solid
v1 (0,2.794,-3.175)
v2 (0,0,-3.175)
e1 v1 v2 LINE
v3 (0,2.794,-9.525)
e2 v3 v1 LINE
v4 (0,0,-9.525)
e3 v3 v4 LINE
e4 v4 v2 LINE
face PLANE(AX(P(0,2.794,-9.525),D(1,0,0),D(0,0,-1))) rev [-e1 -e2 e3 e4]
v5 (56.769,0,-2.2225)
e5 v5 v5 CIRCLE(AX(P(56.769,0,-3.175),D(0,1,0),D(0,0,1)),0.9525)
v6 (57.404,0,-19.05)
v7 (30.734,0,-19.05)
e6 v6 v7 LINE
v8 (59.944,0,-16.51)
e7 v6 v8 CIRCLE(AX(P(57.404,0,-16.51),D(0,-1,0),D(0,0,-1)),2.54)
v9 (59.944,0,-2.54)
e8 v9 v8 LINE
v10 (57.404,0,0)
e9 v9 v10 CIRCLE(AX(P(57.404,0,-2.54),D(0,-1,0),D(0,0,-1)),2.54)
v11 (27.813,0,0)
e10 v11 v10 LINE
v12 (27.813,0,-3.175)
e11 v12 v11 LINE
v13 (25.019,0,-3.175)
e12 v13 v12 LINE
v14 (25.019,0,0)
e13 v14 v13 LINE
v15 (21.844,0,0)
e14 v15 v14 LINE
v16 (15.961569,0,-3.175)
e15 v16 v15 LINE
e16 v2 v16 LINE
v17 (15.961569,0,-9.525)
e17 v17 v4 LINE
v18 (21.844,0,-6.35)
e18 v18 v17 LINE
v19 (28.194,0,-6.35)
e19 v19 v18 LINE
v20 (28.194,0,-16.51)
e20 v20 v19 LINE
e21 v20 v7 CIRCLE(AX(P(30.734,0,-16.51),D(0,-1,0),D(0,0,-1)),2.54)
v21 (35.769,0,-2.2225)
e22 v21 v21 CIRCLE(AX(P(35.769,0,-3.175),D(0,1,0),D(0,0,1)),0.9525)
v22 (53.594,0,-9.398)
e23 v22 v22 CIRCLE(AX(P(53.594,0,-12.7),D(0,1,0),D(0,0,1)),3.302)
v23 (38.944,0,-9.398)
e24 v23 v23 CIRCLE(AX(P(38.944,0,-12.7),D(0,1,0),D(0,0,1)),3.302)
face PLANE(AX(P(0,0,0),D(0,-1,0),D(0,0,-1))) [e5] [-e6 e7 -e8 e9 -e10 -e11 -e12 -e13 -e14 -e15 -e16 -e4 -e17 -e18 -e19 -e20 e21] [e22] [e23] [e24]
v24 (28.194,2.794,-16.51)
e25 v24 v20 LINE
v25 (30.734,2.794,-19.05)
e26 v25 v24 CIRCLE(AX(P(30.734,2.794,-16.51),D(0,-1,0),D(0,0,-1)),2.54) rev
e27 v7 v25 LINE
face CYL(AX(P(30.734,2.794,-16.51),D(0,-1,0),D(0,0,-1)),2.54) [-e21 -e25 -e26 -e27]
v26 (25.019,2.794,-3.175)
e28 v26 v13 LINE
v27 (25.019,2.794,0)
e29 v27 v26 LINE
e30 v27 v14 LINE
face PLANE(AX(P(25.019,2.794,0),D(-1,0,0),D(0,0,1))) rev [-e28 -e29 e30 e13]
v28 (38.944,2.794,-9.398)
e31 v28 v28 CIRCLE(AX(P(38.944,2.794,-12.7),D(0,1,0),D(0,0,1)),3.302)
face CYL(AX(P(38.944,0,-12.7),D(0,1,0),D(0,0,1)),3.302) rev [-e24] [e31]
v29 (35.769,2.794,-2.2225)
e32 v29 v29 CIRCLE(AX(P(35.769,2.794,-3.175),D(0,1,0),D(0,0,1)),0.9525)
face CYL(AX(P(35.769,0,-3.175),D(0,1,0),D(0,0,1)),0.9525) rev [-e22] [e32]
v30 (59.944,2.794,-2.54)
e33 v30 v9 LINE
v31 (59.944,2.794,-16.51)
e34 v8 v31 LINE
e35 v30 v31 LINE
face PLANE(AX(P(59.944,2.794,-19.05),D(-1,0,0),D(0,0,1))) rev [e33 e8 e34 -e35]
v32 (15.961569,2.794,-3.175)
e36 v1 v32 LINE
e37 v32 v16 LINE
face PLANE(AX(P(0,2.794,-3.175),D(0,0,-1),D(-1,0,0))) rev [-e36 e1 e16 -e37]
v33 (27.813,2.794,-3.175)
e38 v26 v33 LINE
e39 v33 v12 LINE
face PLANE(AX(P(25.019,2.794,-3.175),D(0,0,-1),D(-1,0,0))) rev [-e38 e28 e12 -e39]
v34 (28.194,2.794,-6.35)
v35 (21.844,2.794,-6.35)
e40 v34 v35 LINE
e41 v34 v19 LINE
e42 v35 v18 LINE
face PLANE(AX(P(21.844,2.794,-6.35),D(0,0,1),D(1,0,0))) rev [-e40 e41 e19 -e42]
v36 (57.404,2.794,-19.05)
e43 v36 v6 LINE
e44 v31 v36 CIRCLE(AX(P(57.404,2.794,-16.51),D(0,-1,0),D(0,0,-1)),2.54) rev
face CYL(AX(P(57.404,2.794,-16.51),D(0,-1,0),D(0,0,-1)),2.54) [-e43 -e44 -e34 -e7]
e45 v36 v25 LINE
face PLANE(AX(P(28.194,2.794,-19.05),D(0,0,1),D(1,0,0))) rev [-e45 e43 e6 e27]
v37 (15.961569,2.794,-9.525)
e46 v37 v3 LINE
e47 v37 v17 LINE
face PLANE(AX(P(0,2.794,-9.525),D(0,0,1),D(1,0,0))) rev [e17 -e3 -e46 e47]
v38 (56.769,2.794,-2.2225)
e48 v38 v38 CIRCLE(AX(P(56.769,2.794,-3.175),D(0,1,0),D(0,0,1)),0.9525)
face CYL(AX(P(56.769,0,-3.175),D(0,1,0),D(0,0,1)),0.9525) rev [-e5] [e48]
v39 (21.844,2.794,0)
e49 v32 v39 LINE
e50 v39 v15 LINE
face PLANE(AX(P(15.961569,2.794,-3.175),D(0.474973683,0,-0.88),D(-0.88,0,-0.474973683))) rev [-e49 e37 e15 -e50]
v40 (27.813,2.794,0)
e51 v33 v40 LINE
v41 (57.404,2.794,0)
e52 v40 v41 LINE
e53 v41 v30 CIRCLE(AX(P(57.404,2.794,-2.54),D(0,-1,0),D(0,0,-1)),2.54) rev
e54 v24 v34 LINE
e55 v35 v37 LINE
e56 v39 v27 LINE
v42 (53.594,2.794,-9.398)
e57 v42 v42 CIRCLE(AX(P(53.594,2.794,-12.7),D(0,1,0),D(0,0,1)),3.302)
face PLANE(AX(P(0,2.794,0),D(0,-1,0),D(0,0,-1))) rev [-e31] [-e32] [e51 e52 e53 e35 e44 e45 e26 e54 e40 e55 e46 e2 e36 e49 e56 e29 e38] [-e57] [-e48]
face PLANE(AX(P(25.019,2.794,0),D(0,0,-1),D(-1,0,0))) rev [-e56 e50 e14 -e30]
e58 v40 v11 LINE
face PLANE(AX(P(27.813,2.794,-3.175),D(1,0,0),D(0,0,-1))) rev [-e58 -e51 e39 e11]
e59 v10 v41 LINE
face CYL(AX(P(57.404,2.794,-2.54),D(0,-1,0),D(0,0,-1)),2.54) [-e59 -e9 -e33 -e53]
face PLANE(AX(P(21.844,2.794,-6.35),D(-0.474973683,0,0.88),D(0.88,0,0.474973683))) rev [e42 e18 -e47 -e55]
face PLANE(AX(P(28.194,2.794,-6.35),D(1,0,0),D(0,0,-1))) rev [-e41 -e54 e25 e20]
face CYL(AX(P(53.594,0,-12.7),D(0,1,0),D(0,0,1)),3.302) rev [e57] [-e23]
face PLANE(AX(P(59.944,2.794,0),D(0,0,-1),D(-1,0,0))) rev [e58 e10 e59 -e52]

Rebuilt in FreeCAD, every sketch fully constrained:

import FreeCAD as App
import Part
import Sketcher
from FreeCAD import Vector
Q = App.Units.Quantity


def edges_at(feature, points):
    """Names of the edges that pass closest to the given points."""
    edges = feature.Shape.Edges
    near = lambda p: min(range(len(edges)), key=lambda i: edges[i].distToShape(Part.Vertex(*p))[0])
    return sorted({f"Edge{near(p) + 1}" for p in points})


def add_polygon(sketch, points):
    """Adds a closed chain of lines whose ends are joined by coincident constraints."""
    first, n = sketch.GeometryCount, len(points)
    for a, b in zip(points, points[1:] + points[:1]):
        sketch.addGeometry(Part.LineSegment(App.Vector(*a, 0), App.Vector(*b, 0)), False)
    for i in range(n):
        sketch.addConstraint(Sketcher.Constraint("Coincident", first + i, 2, first + (i + 1) % n, 1))

doc = App.newDocument("Part")
body = doc.addObject("PartDesign::Body", "Body")

sketch1 = body.newObject("Sketcher::SketchObject", "Sketch")
sketch1.AttachmentSupport = (doc.getObject("XZ_Plane"), [""])
sketch1.MapMode = "FlatFace"
add_polygon(sketch1, [(27.8, 0), (59.9, 0), (59.9, -19.1), (28.2, -19.1), (28.2, -6.3), (21.8, -6.3), (16, -9.5), (0, -9.5), (0, -3.2), (16, -3.2), (21.8, 0), (25, 0), (25, -3.2), (27.8, -3.2)])
sketch1.addConstraint(Sketcher.Constraint("Horizontal", 0))
sketch1.addConstraint(Sketcher.Constraint("Vertical", 1))
sketch1.addConstraint(Sketcher.Constraint("Horizontal", 2))
sketch1.addConstraint(Sketcher.Constraint("Vertical", 3))
sketch1.addConstraint(Sketcher.Constraint("Horizontal", 4))
sketch1.addConstraint(Sketcher.Constraint("Horizontal", 6))
sketch1.addConstraint(Sketcher.Constraint("Vertical", 7))
sketch1.addConstraint(Sketcher.Constraint("Horizontal", 8))
sketch1.addConstraint(Sketcher.Constraint("Horizontal", 10))
sketch1.addConstraint(Sketcher.Constraint("Vertical", 11))
sketch1.addConstraint(Sketcher.Constraint("Horizontal", 12))
sketch1.addConstraint(Sketcher.Constraint("Vertical", 13))
sketch1.addConstraint(Sketcher.Constraint("PointOnObject", 0, 2, -1))
sketch1.addConstraint(Sketcher.Constraint("PointOnObject", 6, 2, -2))
sketch1.addConstraint(Sketcher.Constraint("PointOnObject", 9, 2, -1))
sketch1.addConstraint(Sketcher.Constraint("Parallel", 5, 9))
sketch1.addConstraint(Sketcher.Constraint("Horizontal", 8, 2, 11, 2))
sketch1.addConstraint(Sketcher.Constraint("Vertical", 5, 2, 8, 2))
sketch1.addConstraint(Sketcher.Constraint("Vertical", 4, 2, 9, 2))
sketch1.addConstraint(Sketcher.Constraint("Equal", 4, 7))
sketch1.addConstraint(Sketcher.Constraint("Equal", 10, 11))
sketch1.addConstraint(Sketcher.Constraint("DistanceY", 3, 1, 3, 2, Q("0.5 in")))
sketch1.addConstraint(Sketcher.Constraint("DistanceX", 2, 2, 2, 1, Q("1.25 in")))
sketch1.addConstraint(Sketcher.Constraint("DistanceX", 4, 2, 4, 1, Q("0.25 in")))
sketch1.addConstraint(Sketcher.Constraint("DistanceX", 12, 1, 12, 2, Q("0.11 in")))
sketch1.addConstraint(Sketcher.Constraint("DistanceX", 0, 1, 0, 2, Q("1.265 in")))
sketch1.addConstraint(Sketcher.Constraint("DistanceX", -1, 1, 0, 2, Q("2.36 in")))
sketch1.addConstraint(Sketcher.Constraint("DistanceX", 6, 2, 6, 1, Q("15.961569 mm")))
pad1 = body.newObject("PartDesign::Pad", "Pad")
pad1.Profile = sketch1
pad1.Length = Q("0.11 in")
pad1.Reversed = True

sketch2 = body.newObject("Sketcher::SketchObject", "Sketch001")
sketch2.AttachmentSupport = (doc.getObject("XZ_Plane"), [""])
sketch2.MapMode = "FlatFace"
sketch2.AttachmentOffset = App.Placement(Vector(0, 0, -0.11 * 25.4), App.Rotation())
sketch2.addGeometry(Part.Circle(Vector(56.8, -3.2, 0), Vector(0, 0, 1), 1), False)
sketch2.addGeometry(Part.Circle(Vector(35.8, -3.2, 0), Vector(0, 0, 1), 1), False)
sketch2.addGeometry(Part.Circle(Vector(53.6, -12.7, 0), Vector(0, 0, 1), 3.3), False)
sketch2.addGeometry(Part.Circle(Vector(38.9, -12.7, 0), Vector(0, 0, 1), 3.3), False)
sketch2.addConstraint(Sketcher.Constraint("Equal", 0, 1))
sketch2.addConstraint(Sketcher.Constraint("Equal", 2, 3))
sketch2.addConstraint(Sketcher.Constraint("Horizontal", 0, 3, 1, 3))
sketch2.addConstraint(Sketcher.Constraint("Horizontal", 2, 3, 3, 3))
sketch2.addConstraint(Sketcher.Constraint("Diameter", 2, Q("0.26 in")))
sketch2.addConstraint(Sketcher.Constraint("Diameter", 0, Q("0.075 in")))
sketch2.addConstraint(Sketcher.Constraint("DistanceY", 2, 3, -1, 1, Q("0.5 in")))
sketch2.addConstraint(Sketcher.Constraint("DistanceX", -1, 1, 2, 3, Q("2.11 in")))
sketch2.addConstraint(Sketcher.Constraint("DistanceX", -1, 1, 0, 3, Q("2.235 in")))
sketch2.addConstraint(Sketcher.Constraint("DistanceY", 0, 3, -1, 1, Q("0.125 in")))
sketch2.addConstraint(Sketcher.Constraint("DistanceX", 1, 3, 3, 3, Q("0.125 in")))
sketch2.addConstraint(Sketcher.Constraint("DistanceX", -1, 1, 1, 3, Q("35.769 mm")))
pocket1 = body.newObject("PartDesign::Pocket", "Pocket")
pocket1.Profile = sketch2
pocket1.Type = "ThroughAll"
pocket1.Reversed = True
doc.recompute()

fillet = body.newObject("PartDesign::Fillet", "Fillet")
fillet.Base = (pocket1, edges_at(pocket1, [(59.944, 1.397, 0), (28.194, 1.397, -19.05), (59.944, 1.397, -19.05)]))
fillet.Radius = Q("0.1 in")

doc.recompute()
